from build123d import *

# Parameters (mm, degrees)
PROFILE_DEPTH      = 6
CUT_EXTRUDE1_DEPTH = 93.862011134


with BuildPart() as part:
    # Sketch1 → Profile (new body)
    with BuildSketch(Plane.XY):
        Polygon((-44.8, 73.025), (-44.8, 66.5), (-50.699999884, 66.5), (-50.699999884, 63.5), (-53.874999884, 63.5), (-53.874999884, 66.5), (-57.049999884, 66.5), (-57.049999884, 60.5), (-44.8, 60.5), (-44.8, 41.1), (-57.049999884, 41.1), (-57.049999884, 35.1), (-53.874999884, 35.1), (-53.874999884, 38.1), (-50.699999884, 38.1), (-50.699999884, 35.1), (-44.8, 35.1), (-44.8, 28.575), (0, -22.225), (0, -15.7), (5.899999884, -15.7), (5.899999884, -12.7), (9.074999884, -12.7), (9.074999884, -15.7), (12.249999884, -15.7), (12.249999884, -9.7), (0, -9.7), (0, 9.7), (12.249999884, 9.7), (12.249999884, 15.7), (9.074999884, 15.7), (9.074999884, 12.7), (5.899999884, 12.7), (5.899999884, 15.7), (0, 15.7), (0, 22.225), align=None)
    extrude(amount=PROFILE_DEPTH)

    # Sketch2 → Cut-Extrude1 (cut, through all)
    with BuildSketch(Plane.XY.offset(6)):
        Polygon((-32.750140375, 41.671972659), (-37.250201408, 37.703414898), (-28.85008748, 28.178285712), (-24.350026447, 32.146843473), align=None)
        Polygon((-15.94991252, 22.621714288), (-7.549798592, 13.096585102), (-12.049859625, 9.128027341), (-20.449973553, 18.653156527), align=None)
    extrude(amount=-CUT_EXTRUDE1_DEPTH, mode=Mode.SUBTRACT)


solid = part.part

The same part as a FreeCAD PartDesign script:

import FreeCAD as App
import Part
import Sketcher


def add_polygon(sketch, points):
    """Adds a closed chain of lines whose ends are joined by coincident constraints."""
    first, n = sketch.GeometryCount, len(points)
    for a, b in zip(points, points[1:] + points[:1]):
        sketch.addGeometry(Part.LineSegment(App.Vector(*a, 0), App.Vector(*b, 0)), False)
    for i in range(n):
        sketch.addConstraint(Sketcher.Constraint("Coincident", first + i, 2, first + (i + 1) % n, 1))

doc = App.newDocument("Part")
params = doc.addObject("Spreadsheet::Sheet", "Params")
for row, (alias, value) in enumerate([
    ("sketch1_height", "3 mm"),
    ("sketch1_height2", "6 mm"),
    ("sketch1_width", "5.9 mm"),
    ("sketch1_height3", "19.4 mm"),
    ("sketch1_width2", "12.25 mm"),
    ("pad1_length", "6 mm"),
    ("sketch2_length", "6 mm"),
    ("sketch2_length2", "12.7 mm"),
], start=1):
    params.set(f"A{row}", alias)
    params.set(f"B{row}", "=" + value)
    params.setAlias(f"B{row}", alias)

body = doc.addObject("PartDesign::Body", "Body")

# Sketch on XY plane
sketch1 = body.newObject("Sketcher::SketchObject", "Sketch")
sketch1.AttachmentSupport = (doc.getObject("XY_Plane"), [""])
sketch1.MapMode = "FlatFace"
add_polygon(sketch1, [(-44.8, 73), (-44.8, 66.5), (-50.7, 66.5), (-50.7, 63.5), (-53.9, 63.5), (-53.9, 66.5), (-57, 66.5), (-57, 60.5), (-44.8, 60.5), (-44.8, 41.1), (-57, 41.1), (-57, 35.1), (-53.9, 35.1), (-53.9, 38.1), (-50.7, 38.1), (-50.7, 35.1), (-44.8, 35.1), (-44.8, 28.6), (0, -22.2), (0, -15.7), (5.9, -15.7), (5.9, -12.7), (9.1, -12.7), (9.1, -15.7), (12.2, -15.7), (12.2, -9.7), (0, -9.7), (0, 9.7), (12.2, 9.7), (12.2, 15.7), (9.1, 15.7), (9.1, 12.7), (5.9, 12.7), (5.9, 15.7), (0, 15.7), (0, 22.2)])  # lines 0-35
sketch1.addConstraint([
    Sketcher.Constraint("Vertical", 0),
    Sketcher.Constraint("Horizontal", 1),
    Sketcher.Constraint("Vertical", 2),
    Sketcher.Constraint("Horizontal", 3),
    Sketcher.Constraint("Vertical", 4),
    Sketcher.Constraint("Horizontal", 5),
    Sketcher.Constraint("Vertical", 6),
    Sketcher.Constraint("Horizontal", 7),
    Sketcher.Constraint("Vertical", 8),
    Sketcher.Constraint("Horizontal", 9),
    Sketcher.Constraint("Vertical", 10),
    Sketcher.Constraint("Horizontal", 11),
    Sketcher.Constraint("Vertical", 12),
    Sketcher.Constraint("Horizontal", 13),
    Sketcher.Constraint("Vertical", 14),
    Sketcher.Constraint("Horizontal", 15),
    Sketcher.Constraint("Vertical", 16),
    Sketcher.Constraint("Vertical", 18),
    Sketcher.Constraint("Horizontal", 19),
    Sketcher.Constraint("Vertical", 20),
    Sketcher.Constraint("Horizontal", 21),
    Sketcher.Constraint("Vertical", 22),
    Sketcher.Constraint("Horizontal", 23),
    Sketcher.Constraint("Vertical", 24),
    Sketcher.Constraint("Horizontal", 25),
    Sketcher.Constraint("Vertical", 26),
    Sketcher.Constraint("Horizontal", 27),
    Sketcher.Constraint("Vertical", 28),
    Sketcher.Constraint("Horizontal", 29),
    Sketcher.Constraint("Vertical", 30),
    Sketcher.Constraint("Horizontal", 31),
    Sketcher.Constraint("Vertical", 32),
    Sketcher.Constraint("Horizontal", 33),
    Sketcher.Constraint("Vertical", 34),
    Sketcher.Constraint("Symmetric", 25, 2, 26, 2, -1, 1),
    Sketcher.Constraint("Symmetric", 18, 2, 33, 2, -1, 1),
    Sketcher.Constraint("Symmetric", 23, 2, 28, 2, -1),
    Sketcher.Constraint("Symmetric", 21, 2, 30, 2, -1),
    Sketcher.Constraint("Symmetric", 17, 2, 34, 2, -1),
    Sketcher.Constraint("Parallel", 17, 35),
    Sketcher.Constraint("Horizontal", 1, 2, 4, 2),
    Sketcher.Constraint("Horizontal", 11, 2, 14, 2),
    Sketcher.Constraint("Horizontal", 19, 2, 22, 2),
    Sketcher.Constraint("Vertical", 0, 2, 7, 2),
    Sketcher.Constraint("Vertical", 6, 2, 9, 2),
    Sketcher.Constraint("Vertical", 4, 2, 11, 2),
    Sketcher.Constraint("Vertical", 2, 2, 13, 2),
    Sketcher.Constraint("Vertical", 8, 2, 15, 2),
    Sketcher.Constraint("Vertical", 20, 2, 31, 2),
    Sketcher.Constraint("Equal", 3, 5),
    Sketcher.Constraint("Equal", 15, 19),
    Sketcher.Constraint("Equal", 13, 21),
    Sketcher.Constraint("Equal", 21, 23),
    Sketcher.Constraint("Equal", 6, 10),
    Sketcher.Constraint("Equal", 4, 12),
    Sketcher.Constraint("Equal", 0, 16),
    Sketcher.Constraint("Equal", 16, 18),
    Sketcher.Constraint("Equal", 14, 20),
    Sketcher.Constraint("Equal", 10, 24),
    Sketcher.Constraint("DistanceY", 2, 2, 2, 1, 3.0),
    Sketcher.Constraint("DistanceY", 6, 2, 6, 1, 6.0),
    Sketcher.Constraint("DistanceX", 1, 2, 1, 1, 5.9),
    Sketcher.Constraint("DistanceY", 8, 2, 8, 1, 19.4),
    Sketcher.Constraint("DistanceX", 7, 1, 7, 2, 12.25),
    Sketcher.Constraint("DistanceX", 0, 2, -1, 1, 44.8),
    Sketcher.Constraint("DistanceY", -1, 1, 0, 2, 66.5),
    Sketcher.Constraint("DistanceY", 0, 2, 0, 1, 6.525),
])
sketch1.setExpression("Constraints[95]", "Params.sketch1_height")
sketch1.setExpression("Constraints[96]", "Params.sketch1_height2")
sketch1.setExpression("Constraints[97]", "Params.sketch1_width")
sketch1.setExpression("Constraints[98]", "Params.sketch1_height3")
sketch1.setExpression("Constraints[99]", "Params.sketch1_width2")
pad1 = body.newObject("PartDesign::Pad", "Pad")
pad1.Profile = sketch1
pad1.setExpression("Length", "Params.pad1_length")

# Sketch on XY plane
sketch2 = body.newObject("Sketcher::SketchObject", "Sketch001")
sketch2.AttachmentSupport = (doc.getObject("XY_Plane"), [""])
sketch2.MapMode = "FlatFace"
sketch2.AttachmentOffset = App.Placement(App.Vector(0, 0, 6), App.Rotation())
add_polygon(sketch2, [(-33, 42), (-37, 38), (-29, 28), (-24, 32)])  # lines 0-3
add_polygon(sketch2, [(-8, 13), (-16, 23), (-20, 19), (-12, 9)])  # lines 4-7
sketch2.addConstraint([
    Sketcher.Constraint("Perpendicular", 0, 1),
    Sketcher.Constraint("Perpendicular", 1, 2),
    Sketcher.Constraint("Perpendicular", 2, 3),
    Sketcher.Constraint("Parallel", 3, 4),
    Sketcher.Constraint("Perpendicular", 4, 5),
    Sketcher.Constraint("Perpendicular", 5, 6),
    Sketcher.Constraint("Perpendicular", 6, 7),
    Sketcher.Constraint("Equal", 3, 4),
    Sketcher.Constraint("Equal", 2, 5),
    Sketcher.Constraint("Distance", 0, 6.0),
    Sketcher.Constraint("Distance", 1, 12.7),
    Sketcher.Constraint("DistanceX", 0, 2, -1, 1, 37.250201),
    Sketcher.Constraint("DistanceX", 7, 2, -1, 1, 7.549799),
    Sketcher.Constraint("DistanceY", 4, 2, 0, 2, 15.081701),
    Sketcher.Constraint("DistanceX", 3, 2, -1, 1, 32.75014),
    Sketcher.Constraint("DistanceY", -1, 1, 0, 2, 37.703415),
])
sketch2.setExpression("Constraints[17]", "Params.sketch2_length")
sketch2.setExpression("Constraints[18]", "Params.sketch2_length2")
pocket1 = body.newObject("PartDesign::Pocket", "Pocket")
pocket1.Profile = sketch2
pocket1.Type = "ThroughAll"

doc.recompute()
